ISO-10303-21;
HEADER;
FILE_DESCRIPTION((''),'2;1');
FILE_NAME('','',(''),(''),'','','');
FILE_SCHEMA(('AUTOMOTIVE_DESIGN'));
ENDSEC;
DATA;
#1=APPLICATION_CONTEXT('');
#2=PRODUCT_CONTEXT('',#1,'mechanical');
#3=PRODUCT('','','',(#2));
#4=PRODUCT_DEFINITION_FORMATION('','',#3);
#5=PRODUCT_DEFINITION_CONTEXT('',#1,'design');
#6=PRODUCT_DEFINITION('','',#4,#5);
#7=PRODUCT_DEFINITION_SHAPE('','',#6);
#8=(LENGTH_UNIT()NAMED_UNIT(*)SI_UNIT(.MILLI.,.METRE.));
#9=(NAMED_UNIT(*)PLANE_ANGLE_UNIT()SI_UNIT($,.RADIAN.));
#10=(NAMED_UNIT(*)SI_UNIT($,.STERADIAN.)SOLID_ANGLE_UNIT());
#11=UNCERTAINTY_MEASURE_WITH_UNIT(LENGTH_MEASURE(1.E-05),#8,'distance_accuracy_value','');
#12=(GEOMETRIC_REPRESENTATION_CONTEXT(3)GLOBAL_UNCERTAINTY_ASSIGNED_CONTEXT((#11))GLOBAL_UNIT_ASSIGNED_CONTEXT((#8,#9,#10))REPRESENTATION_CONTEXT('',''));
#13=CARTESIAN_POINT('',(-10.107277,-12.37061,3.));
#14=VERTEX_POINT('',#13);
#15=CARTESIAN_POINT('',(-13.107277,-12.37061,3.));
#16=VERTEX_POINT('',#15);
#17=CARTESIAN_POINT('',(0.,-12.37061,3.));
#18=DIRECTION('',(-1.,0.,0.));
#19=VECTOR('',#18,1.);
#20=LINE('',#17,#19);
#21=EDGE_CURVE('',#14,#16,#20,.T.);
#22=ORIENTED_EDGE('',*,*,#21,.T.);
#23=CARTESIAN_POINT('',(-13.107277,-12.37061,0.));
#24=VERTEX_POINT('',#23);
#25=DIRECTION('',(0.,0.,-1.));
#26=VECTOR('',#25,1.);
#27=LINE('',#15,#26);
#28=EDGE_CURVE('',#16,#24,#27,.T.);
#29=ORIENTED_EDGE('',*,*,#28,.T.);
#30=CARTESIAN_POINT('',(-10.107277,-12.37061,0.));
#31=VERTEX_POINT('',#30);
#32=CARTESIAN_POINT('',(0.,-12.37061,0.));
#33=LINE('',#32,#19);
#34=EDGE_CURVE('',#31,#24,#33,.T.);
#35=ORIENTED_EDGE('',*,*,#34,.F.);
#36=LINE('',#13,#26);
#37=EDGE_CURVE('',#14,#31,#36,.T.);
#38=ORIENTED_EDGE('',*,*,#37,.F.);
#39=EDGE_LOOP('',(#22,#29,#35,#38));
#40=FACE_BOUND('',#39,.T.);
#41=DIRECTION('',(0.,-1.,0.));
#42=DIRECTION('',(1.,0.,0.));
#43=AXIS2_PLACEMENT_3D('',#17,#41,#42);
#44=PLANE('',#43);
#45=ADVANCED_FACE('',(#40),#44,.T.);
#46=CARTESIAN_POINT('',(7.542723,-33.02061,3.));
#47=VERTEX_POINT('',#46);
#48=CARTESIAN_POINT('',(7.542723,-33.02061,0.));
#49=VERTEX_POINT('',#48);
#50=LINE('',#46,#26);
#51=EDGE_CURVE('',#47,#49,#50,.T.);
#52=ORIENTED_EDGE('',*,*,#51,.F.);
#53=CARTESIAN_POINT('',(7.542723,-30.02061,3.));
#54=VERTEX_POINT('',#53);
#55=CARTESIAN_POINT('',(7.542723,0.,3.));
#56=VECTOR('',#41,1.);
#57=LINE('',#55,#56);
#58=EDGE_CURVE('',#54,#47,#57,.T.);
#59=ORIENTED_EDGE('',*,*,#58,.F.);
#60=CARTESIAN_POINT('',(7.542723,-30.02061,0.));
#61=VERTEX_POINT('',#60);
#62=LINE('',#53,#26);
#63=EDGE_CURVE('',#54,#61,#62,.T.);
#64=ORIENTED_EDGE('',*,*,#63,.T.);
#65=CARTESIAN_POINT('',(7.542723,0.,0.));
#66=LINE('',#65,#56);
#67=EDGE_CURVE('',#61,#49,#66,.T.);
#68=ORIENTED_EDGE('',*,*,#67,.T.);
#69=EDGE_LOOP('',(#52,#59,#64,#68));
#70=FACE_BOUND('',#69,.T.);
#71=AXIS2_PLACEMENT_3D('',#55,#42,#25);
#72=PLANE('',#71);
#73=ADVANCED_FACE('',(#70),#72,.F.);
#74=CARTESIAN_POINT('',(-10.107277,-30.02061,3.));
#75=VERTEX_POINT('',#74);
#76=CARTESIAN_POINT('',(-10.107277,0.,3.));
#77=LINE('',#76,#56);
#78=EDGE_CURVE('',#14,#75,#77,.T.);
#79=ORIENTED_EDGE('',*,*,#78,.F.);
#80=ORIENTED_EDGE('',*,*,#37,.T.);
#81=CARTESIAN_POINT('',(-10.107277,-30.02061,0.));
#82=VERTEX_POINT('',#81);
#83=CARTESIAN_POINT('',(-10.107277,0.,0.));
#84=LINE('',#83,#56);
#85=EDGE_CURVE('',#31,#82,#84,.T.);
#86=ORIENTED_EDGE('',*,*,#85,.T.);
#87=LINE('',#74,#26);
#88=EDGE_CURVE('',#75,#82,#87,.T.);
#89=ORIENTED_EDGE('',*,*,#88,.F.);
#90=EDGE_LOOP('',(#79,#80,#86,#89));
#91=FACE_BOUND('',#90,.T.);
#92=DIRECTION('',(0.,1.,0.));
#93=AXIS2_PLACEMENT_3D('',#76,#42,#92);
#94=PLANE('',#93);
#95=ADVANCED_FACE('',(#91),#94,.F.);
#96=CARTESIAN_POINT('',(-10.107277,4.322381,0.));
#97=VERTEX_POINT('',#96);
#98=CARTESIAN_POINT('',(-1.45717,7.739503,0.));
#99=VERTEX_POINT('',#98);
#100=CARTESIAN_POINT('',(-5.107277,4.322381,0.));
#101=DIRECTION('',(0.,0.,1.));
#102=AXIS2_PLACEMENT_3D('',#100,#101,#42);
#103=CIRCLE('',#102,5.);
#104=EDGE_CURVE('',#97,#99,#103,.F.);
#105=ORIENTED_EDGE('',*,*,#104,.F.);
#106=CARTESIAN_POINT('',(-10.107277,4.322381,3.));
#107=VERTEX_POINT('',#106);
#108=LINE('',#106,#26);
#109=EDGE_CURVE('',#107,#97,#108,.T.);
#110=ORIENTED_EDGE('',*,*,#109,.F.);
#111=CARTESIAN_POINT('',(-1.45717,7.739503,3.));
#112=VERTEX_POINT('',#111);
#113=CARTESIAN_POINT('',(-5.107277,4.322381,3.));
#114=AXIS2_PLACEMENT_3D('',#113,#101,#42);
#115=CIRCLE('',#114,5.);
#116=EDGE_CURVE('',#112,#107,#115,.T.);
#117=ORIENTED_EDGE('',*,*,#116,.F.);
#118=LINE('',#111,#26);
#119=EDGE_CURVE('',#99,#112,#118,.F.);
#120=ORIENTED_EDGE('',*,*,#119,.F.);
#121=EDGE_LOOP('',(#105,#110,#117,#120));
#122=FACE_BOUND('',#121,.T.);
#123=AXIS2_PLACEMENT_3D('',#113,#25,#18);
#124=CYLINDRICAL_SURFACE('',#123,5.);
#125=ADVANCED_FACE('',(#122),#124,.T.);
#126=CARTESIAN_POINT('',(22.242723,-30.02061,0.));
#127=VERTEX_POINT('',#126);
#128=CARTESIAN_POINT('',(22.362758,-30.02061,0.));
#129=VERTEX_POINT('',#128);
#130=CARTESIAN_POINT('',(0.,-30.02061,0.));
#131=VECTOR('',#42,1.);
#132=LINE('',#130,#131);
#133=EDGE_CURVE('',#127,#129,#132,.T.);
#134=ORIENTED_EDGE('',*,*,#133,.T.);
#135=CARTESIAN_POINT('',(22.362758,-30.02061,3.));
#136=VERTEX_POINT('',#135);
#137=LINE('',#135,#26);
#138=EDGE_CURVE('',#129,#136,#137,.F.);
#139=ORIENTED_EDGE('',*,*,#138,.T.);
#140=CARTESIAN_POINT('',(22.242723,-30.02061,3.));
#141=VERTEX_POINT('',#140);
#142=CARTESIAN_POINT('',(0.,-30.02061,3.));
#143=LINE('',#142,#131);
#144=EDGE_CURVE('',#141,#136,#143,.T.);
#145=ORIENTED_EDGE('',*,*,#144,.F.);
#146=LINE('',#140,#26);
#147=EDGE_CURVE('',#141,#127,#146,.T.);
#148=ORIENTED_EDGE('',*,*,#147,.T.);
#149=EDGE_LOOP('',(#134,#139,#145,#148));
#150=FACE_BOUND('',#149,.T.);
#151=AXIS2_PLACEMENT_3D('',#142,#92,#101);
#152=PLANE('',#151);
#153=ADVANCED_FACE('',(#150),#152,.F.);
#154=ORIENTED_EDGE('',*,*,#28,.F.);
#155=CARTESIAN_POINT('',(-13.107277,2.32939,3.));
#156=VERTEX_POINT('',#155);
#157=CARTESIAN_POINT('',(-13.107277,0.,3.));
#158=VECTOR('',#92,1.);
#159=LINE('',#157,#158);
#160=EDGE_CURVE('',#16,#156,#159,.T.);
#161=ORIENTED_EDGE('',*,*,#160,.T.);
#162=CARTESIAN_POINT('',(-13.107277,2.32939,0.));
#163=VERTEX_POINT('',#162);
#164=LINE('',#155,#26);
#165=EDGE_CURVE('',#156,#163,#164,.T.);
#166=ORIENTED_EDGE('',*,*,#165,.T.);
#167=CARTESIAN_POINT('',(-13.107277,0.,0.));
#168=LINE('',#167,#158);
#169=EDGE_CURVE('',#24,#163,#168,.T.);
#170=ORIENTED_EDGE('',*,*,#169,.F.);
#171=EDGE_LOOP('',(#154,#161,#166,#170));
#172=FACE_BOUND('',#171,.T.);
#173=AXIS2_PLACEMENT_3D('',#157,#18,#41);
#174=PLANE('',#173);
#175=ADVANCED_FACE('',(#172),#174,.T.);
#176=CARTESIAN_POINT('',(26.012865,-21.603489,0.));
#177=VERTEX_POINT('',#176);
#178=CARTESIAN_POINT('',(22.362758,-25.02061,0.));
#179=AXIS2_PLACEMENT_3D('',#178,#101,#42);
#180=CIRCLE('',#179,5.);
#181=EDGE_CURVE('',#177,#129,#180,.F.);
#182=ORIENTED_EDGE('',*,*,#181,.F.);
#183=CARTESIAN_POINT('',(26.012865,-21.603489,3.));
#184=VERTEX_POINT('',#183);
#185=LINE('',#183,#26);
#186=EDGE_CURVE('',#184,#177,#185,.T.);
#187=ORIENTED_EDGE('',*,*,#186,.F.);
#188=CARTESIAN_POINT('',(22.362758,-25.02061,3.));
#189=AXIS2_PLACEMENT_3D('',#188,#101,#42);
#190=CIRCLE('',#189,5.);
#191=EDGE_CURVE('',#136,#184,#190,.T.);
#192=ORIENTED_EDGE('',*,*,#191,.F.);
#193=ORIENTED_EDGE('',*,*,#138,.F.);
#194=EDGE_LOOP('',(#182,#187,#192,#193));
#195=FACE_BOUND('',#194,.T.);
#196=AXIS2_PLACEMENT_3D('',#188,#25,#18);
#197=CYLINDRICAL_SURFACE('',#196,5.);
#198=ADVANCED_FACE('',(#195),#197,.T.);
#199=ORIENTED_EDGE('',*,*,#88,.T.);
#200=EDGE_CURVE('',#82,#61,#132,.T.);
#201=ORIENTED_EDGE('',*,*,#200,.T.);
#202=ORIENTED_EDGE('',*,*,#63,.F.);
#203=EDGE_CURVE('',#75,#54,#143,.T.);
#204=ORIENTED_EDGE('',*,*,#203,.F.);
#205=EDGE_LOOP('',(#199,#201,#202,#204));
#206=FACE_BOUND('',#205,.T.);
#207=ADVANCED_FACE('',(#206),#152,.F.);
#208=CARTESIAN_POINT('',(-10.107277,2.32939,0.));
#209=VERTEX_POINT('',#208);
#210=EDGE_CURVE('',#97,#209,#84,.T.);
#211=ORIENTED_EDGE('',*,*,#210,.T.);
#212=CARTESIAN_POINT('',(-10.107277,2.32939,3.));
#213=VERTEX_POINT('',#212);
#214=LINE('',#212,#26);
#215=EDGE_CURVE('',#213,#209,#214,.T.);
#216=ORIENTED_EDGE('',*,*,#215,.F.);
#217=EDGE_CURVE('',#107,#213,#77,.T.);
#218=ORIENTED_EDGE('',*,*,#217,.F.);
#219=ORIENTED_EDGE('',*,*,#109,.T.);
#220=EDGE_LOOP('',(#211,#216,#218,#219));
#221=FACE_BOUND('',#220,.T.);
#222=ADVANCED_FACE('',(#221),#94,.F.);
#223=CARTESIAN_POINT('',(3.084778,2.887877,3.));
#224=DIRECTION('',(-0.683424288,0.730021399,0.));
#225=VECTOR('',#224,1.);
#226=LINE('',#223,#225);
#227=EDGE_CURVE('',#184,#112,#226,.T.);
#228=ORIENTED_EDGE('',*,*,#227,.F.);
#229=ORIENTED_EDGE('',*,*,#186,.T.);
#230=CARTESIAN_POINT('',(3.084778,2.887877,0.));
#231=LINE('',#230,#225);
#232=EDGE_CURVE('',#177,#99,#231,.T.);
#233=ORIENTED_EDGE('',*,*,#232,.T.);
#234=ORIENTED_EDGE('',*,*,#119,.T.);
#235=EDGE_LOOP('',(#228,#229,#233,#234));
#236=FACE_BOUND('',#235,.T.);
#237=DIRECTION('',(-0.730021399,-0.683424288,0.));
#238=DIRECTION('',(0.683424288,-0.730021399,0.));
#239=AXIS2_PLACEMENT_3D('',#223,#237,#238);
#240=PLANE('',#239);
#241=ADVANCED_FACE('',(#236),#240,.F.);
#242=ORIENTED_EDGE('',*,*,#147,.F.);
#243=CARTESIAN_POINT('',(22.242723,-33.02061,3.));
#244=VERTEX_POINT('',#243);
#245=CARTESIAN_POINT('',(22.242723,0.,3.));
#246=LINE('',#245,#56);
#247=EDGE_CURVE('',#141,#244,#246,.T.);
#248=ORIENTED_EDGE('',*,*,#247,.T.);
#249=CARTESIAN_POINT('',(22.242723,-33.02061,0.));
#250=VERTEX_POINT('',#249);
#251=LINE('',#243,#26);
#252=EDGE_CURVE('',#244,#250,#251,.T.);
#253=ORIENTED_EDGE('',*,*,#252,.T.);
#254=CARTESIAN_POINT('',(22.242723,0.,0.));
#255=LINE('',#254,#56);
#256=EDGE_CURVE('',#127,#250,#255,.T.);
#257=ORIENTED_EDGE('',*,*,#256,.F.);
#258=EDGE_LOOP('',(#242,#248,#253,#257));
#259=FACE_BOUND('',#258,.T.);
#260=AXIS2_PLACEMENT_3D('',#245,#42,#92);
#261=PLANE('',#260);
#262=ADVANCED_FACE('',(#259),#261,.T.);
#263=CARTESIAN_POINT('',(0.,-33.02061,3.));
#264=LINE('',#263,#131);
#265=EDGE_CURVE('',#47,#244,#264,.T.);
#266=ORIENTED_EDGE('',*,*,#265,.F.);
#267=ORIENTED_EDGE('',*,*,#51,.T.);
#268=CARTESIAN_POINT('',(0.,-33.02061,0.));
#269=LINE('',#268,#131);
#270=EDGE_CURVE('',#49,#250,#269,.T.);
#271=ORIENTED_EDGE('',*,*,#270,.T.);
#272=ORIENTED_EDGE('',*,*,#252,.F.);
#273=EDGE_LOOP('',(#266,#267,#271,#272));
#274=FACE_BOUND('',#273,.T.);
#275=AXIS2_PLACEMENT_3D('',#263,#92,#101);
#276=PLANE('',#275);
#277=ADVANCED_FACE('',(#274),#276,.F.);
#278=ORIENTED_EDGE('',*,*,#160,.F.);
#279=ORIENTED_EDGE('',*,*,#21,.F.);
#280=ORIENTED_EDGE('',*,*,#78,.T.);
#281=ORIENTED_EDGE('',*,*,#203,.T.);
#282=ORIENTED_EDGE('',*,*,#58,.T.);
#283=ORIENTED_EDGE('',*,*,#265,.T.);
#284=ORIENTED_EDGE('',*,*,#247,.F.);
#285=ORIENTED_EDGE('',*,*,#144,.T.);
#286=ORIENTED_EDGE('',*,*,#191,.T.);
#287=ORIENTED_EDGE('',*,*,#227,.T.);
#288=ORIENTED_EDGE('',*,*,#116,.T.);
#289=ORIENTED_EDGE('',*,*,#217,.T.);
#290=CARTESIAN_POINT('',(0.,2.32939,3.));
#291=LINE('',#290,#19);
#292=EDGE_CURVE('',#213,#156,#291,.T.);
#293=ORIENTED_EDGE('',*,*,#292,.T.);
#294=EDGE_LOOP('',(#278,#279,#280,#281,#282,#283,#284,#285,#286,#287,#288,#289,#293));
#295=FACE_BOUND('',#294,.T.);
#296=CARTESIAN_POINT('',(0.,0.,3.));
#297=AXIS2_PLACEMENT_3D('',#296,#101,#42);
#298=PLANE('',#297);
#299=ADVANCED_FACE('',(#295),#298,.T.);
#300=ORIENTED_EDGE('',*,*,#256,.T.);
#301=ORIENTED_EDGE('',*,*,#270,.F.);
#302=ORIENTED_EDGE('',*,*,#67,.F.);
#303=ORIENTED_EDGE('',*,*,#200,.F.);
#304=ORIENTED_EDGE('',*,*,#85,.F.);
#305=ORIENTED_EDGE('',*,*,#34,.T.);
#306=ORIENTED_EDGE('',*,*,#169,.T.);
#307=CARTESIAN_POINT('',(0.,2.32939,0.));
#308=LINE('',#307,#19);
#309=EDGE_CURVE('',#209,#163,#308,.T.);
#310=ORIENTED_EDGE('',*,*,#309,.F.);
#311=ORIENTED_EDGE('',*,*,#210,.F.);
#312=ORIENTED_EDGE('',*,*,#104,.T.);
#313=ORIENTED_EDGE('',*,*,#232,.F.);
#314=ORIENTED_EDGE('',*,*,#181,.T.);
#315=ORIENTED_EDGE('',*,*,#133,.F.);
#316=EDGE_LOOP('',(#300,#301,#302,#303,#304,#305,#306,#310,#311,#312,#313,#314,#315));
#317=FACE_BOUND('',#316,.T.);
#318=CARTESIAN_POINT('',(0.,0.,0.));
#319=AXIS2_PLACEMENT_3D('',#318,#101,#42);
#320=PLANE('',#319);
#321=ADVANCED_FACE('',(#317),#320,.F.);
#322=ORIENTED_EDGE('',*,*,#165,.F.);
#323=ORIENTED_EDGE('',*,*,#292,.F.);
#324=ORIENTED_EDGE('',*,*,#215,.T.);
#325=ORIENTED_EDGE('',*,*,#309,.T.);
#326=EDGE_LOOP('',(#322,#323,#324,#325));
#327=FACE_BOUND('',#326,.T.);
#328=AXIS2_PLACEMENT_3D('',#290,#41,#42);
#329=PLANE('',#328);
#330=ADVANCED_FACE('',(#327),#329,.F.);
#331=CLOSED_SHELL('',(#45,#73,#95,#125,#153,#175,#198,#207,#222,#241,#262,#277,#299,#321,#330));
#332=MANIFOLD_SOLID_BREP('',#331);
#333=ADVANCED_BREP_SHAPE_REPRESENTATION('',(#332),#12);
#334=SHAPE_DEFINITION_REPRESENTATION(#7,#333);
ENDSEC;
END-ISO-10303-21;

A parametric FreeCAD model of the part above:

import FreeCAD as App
import Part
import Sketcher

V = App.Vector
Q = App.Units.Quantity


def edges_at(feature, points):
    """Names of the edges that pass closest to the given points."""
    edges = feature.Shape.Edges
    near = lambda p: min(range(len(edges)), key=lambda i: edges[i].distToShape(Part.Vertex(*p))[0])
    return sorted({f"Edge{near(p) + 1}" for p in points})


def add_polygon(sketch, points):
    """Adds a closed chain of lines whose ends are joined by coincident constraints."""
    first, n = sketch.GeometryCount, len(points)
    for a, b in zip(points, points[1:] + points[:1]):
        sketch.addGeometry(Part.LineSegment(App.Vector(*a, 0), App.Vector(*b, 0)), False)
    for i in range(n):
        sketch.addConstraint(Sketcher.Constraint("Coincident", first + i, 2, first + (i + 1) % n, 1))

doc = App.newDocument("Part")
body = doc.addObject("PartDesign::Body", "Body")

# Sketch on XY plane
sketch1 = body.newObject("Sketcher::SketchObject", "Sketch")
sketch1.AttachmentSupport = (doc.getObject("XY_Plane"), [""])
sketch1.MapMode = "FlatFace"
add_polygon(sketch1, [(33.9, -30), (12.6, -7.3), (-10.1, 17), (-10.1, 2.3), (-13.1, 2.3), (-13.1, -12.4), (-10.1, -12.4), (-10.1, -30), (7.5, -30), (7.5, -33), (22.2, -33), (22.2, -30)])  # lines 0-11
sketch1.addConstraint([
    Sketcher.Constraint("Vertical", 2),
    Sketcher.Constraint("Horizontal", 3),
    Sketcher.Constraint("Vertical", 4),
    Sketcher.Constraint("Horizontal", 5),
    Sketcher.Constraint("Vertical", 6),
    Sketcher.Constraint("Horizontal", 7),
    Sketcher.Constraint("Vertical", 8),
    Sketcher.Constraint("Horizontal", 9),
    Sketcher.Constraint("Vertical", 10),
    Sketcher.Constraint("Horizontal", 11),
    Sketcher.Constraint("Parallel", 0, 1),
    Sketcher.Constraint("Horizontal", 7, 2, 10, 2),
    Sketcher.Constraint("Vertical", 2, 2, 5, 2),
    Sketcher.Constraint("Equal", 9, 4),
    Sketcher.Constraint("Equal", 7, 6),
    Sketcher.Constraint("Equal", 5, 8),
    Sketcher.Constraint("DistanceX", 3, 2, 3, 1, Q("3 mm")),
    Sketcher.Constraint("DistanceX", 9, 1, 9, 2, Q("14.7 mm")),
    Sketcher.Constraint("DistanceX", 7, 1, 7, 2, Q("17.65 mm")),
    Sketcher.Constraint("DistanceX", 11, 1, 11, 2, Q("11.65 mm")),
    Sketcher.Constraint("DistanceY", 2, 2, 2, 1, Q("14.65 mm")),
    Sketcher.Constraint("Distance", 0, Q("31.129601 mm")),
    Sketcher.Constraint("DistanceY", -1, 1, 1, 2, Q("16.97939 mm")),
    Sketcher.Constraint("DistanceX", -1, 1, 0, 2, Q("12.617998 mm")),
])
pad1 = body.newObject("PartDesign::Pad", "Pad")
pad1.Profile = sketch1
pad1.Length = 3
doc.recompute()

fillet = body.newObject("PartDesign::Fillet", "Fillet")
fillet.Base = (pad1, edges_at(pad1, [(33.893, -30.021, 1.5), (-10.107, 16.979, 1.5)]))
fillet.Radius = 5

doc.recompute()
